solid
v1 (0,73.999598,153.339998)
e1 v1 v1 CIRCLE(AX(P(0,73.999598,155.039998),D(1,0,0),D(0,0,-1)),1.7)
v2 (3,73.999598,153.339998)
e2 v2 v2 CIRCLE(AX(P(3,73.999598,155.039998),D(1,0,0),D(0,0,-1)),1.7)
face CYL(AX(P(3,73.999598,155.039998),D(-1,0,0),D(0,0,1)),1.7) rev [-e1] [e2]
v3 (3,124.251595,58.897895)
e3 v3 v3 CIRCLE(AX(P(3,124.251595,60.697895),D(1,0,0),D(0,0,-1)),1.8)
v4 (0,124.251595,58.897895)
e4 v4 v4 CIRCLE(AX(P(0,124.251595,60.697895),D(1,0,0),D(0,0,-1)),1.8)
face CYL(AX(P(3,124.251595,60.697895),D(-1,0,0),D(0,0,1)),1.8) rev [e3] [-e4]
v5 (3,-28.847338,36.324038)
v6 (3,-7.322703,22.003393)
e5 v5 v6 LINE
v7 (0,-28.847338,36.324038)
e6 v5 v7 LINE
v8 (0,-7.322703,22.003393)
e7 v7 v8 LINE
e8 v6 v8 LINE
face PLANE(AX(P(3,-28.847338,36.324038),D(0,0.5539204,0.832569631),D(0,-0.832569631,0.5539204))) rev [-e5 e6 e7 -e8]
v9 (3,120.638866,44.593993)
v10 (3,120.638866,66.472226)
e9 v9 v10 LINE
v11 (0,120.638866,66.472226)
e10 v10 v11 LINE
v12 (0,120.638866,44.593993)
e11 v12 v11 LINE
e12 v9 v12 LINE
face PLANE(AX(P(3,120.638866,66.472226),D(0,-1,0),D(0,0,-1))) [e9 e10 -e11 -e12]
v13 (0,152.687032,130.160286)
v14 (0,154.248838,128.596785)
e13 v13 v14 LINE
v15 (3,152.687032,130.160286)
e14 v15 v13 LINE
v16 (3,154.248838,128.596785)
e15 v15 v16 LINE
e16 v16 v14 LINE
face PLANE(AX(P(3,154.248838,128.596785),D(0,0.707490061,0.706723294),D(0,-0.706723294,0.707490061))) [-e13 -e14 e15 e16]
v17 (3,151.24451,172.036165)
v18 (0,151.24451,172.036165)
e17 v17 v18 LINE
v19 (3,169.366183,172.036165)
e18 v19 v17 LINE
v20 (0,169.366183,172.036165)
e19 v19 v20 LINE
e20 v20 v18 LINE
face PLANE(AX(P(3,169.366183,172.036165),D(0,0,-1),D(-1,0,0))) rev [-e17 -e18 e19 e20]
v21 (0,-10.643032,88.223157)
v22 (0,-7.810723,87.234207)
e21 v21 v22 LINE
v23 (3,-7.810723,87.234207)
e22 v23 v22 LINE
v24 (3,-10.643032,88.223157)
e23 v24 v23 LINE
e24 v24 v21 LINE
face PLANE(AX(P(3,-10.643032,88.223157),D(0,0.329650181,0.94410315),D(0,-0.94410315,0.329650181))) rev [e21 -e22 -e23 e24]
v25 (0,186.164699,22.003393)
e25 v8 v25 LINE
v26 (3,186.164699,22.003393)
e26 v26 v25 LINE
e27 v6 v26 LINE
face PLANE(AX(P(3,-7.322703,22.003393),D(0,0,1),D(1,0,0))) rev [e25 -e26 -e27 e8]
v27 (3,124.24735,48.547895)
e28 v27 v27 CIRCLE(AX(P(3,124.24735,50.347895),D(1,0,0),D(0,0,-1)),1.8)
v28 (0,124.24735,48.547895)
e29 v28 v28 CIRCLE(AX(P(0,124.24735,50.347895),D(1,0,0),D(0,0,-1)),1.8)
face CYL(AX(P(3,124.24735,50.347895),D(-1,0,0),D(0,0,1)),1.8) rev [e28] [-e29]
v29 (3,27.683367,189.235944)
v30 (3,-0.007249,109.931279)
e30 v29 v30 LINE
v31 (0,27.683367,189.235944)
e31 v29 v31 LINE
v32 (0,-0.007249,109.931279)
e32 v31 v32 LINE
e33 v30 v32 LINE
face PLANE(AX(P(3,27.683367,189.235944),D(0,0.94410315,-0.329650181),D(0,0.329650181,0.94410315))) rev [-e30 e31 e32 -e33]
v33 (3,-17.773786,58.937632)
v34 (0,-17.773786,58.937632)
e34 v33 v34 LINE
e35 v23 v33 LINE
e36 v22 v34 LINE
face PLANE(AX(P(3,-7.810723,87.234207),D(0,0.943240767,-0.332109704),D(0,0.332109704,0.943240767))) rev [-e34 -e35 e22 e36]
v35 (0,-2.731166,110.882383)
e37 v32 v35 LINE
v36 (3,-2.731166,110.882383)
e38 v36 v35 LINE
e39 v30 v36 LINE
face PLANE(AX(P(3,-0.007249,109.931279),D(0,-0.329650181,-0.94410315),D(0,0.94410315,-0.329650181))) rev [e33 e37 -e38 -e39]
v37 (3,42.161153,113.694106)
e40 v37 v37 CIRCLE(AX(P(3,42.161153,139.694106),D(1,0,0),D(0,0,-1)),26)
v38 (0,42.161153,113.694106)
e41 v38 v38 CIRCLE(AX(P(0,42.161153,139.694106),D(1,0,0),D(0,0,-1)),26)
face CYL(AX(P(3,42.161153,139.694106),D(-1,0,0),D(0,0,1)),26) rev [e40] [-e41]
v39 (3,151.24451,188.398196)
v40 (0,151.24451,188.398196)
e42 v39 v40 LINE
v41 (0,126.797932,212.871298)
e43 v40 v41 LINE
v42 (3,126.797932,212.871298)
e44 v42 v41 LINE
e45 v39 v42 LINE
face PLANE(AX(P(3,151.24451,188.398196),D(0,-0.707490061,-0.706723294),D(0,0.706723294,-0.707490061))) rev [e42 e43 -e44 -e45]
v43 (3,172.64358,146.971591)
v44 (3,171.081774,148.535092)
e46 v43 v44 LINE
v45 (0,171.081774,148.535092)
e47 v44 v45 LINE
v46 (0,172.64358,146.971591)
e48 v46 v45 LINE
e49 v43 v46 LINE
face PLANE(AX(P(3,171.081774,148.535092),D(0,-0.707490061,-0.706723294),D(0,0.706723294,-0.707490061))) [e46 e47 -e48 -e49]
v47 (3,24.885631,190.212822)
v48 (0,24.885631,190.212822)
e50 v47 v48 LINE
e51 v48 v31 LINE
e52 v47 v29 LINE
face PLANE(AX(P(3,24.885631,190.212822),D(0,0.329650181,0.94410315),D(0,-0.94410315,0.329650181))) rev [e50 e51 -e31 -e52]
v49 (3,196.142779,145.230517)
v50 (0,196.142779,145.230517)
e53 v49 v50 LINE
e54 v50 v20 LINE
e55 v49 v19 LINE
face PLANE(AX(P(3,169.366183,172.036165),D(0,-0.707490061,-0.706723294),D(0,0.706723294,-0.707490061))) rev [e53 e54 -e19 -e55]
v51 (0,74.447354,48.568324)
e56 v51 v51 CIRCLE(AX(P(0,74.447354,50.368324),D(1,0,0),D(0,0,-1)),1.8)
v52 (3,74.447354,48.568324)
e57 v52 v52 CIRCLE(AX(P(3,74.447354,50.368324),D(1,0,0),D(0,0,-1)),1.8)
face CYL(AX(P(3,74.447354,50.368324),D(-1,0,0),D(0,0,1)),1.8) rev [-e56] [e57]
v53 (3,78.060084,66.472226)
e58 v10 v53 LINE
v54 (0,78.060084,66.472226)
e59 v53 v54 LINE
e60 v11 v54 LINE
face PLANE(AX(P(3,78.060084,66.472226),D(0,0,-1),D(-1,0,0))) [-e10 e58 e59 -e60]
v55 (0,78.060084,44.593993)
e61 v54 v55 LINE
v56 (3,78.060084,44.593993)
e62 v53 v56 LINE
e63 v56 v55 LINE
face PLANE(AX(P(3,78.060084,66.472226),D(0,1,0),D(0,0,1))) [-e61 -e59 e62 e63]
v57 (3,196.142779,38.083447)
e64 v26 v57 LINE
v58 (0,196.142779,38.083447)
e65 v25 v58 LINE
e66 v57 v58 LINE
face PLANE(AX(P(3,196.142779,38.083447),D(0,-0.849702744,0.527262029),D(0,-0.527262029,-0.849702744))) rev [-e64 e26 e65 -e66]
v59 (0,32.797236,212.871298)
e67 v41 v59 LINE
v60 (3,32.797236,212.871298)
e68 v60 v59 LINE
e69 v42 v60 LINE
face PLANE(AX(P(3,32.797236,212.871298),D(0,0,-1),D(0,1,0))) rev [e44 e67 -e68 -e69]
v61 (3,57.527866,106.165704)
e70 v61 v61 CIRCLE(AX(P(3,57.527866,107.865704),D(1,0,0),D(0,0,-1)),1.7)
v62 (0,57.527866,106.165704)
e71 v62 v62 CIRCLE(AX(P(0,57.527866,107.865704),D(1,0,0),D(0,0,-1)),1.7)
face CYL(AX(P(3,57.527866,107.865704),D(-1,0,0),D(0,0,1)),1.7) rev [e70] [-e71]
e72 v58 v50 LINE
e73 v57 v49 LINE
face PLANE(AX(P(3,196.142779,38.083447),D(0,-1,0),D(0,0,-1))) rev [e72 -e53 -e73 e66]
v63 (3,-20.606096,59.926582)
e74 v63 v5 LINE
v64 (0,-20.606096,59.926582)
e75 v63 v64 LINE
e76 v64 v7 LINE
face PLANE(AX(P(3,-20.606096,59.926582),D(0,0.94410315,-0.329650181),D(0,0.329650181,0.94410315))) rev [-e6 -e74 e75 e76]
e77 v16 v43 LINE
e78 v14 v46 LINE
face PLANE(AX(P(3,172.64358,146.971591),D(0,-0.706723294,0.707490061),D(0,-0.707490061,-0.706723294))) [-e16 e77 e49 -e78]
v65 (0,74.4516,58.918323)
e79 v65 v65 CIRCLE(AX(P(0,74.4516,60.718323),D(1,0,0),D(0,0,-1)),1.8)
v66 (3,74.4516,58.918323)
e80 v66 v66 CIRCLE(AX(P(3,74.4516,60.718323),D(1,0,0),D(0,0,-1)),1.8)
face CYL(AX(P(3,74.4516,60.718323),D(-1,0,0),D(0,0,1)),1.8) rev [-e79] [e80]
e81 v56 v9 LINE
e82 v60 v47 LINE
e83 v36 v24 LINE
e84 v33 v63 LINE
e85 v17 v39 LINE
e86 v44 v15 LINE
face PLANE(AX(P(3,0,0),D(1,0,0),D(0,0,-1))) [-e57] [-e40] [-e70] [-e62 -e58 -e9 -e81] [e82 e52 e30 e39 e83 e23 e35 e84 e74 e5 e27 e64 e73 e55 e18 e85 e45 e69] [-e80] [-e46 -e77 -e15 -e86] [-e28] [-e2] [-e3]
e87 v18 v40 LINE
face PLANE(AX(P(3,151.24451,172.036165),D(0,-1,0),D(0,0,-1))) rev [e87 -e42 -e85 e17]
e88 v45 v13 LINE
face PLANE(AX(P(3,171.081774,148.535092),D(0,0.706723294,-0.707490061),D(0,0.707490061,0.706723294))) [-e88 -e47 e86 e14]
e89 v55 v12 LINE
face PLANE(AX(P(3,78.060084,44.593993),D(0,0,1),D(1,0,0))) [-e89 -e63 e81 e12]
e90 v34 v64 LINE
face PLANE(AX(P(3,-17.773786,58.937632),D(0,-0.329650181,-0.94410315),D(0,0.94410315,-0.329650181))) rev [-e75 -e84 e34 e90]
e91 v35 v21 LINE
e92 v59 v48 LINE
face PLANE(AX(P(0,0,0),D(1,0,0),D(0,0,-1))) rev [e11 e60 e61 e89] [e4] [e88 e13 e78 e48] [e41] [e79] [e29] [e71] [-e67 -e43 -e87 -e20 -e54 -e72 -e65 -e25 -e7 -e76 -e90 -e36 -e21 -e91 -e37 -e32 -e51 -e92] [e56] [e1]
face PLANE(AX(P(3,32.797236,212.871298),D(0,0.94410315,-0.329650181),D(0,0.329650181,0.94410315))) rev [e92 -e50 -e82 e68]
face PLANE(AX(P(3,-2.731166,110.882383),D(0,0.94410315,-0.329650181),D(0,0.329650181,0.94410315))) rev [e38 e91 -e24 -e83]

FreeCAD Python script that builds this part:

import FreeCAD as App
import Part
import Sketcher
from FreeCAD import Vector
Q = App.Units.Quantity

doc = App.newDocument("Part")
body = doc.addObject("PartDesign::Body", "Body")

# Sketch on YZ plane
sketch1 = body.newObject("Sketcher::SketchObject", "Sketch")
sketch1.AttachmentSupport = (doc.getObject("YZ_Plane"), [""])
sketch1.MapMode = "FlatFace"
sketch1.addGeometry(Part.LineSegment(Vector(-2.731166, 110.882383, 0), Vector(-10.643032, 88.223157, 0)), False)
sketch1.addGeometry(Part.LineSegment(Vector(-10.643032, 88.223157, 0), Vector(-7.810723, 87.234207, 0)), False)
sketch1.addGeometry(Part.LineSegment(Vector(-7.810723, 87.234207, 0), Vector(-17.773786, 58.937632, 0)), False)
sketch1.addGeometry(Part.LineSegment(Vector(-17.773786, 58.937632, 0), Vector(-20.606096, 59.926582, 0)), False)
sketch1.addGeometry(Part.LineSegment(Vector(-20.606096, 59.926582, 0), Vector(-28.847338, 36.324038, 0)), False)
sketch1.addGeometry(Part.LineSegment(Vector(-28.847338, 36.324038, 0), Vector(-7.322703, 22.003393, 0)), False)
sketch1.addGeometry(Part.LineSegment(Vector(-7.322703, 22.003393, 0), Vector(186.164699, 22.003393, 0)), False)
sketch1.addGeometry(Part.LineSegment(Vector(186.164699, 22.003393, 0), Vector(196.142779, 38.083447, 0)), False)
sketch1.addGeometry(Part.LineSegment(Vector(196.142779, 38.083447, 0), Vector(196.142779, 145.230517, 0)), False)
sketch1.addGeometry(Part.LineSegment(Vector(196.142779, 145.230517, 0), Vector(169.366183, 172.036165, 0)), False)
sketch1.addGeometry(Part.LineSegment(Vector(169.366183, 172.036165, 0), Vector(151.24451, 172.036165, 0)), False)
sketch1.addGeometry(Part.LineSegment(Vector(151.24451, 172.036165, 0), Vector(151.24451, 188.398196, 0)), False)
sketch1.addGeometry(Part.LineSegment(Vector(151.24451, 188.398196, 0), Vector(126.797932, 212.871298, 0)), False)
sketch1.addGeometry(Part.LineSegment(Vector(126.797932, 212.871298, 0), Vector(32.797236, 212.871298, 0)), False)
sketch1.addGeometry(Part.LineSegment(Vector(32.797236, 212.871298, 0), Vector(24.885631, 190.212822, 0)), False)
sketch1.addGeometry(Part.LineSegment(Vector(24.885631, 190.212822, 0), Vector(27.683367, 189.235944, 0)), False)
sketch1.addGeometry(Part.LineSegment(Vector(27.683367, 189.235944, 0), Vector(-0.007249, 109.931279, 0)), False)
sketch1.addGeometry(Part.LineSegment(Vector(-0.007249, 109.931279, 0), Vector(-2.731166, 110.882383, 0)), False)
sketch1.addGeometry(Part.Circle(Vector(42.161153, 139.694106, 0), Vector(0, 0, 1), 26), False)
sketch1.addGeometry(Part.Circle(Vector(73.999598, 155.039998, 0), Vector(0, 0, 1), 1.7), False)
sketch1.addGeometry(Part.Circle(Vector(57.527866, 107.865704, 0), Vector(0, 0, 1), 1.7), False)
sketch1.addGeometry(Part.Circle(Vector(74.4516, 60.718323, 0), Vector(0, 0, 1), 1.8), False)
sketch1.addGeometry(Part.Circle(Vector(74.447354, 50.368324, 0), Vector(0, 0, 1), 1.8), False)
sketch1.addGeometry(Part.LineSegment(Vector(152.687032, 130.160286, 0), Vector(171.081774, 148.535092, 0)), False)
sketch1.addGeometry(Part.LineSegment(Vector(171.081774, 148.535092, 0), Vector(172.64358, 146.971591, 0)), False)
sketch1.addGeometry(Part.LineSegment(Vector(172.64358, 146.971591, 0), Vector(154.248838, 128.596785, 0)), False)
sketch1.addGeometry(Part.LineSegment(Vector(154.248838, 128.596785, 0), Vector(152.687032, 130.160286, 0)), False)
sketch1.addGeometry(Part.LineSegment(Vector(78.060084, 44.593993, 0), Vector(78.060084, 66.472226, 0)), False)
sketch1.addGeometry(Part.LineSegment(Vector(78.060084, 66.472226, 0), Vector(120.638866, 66.472226, 0)), False)
sketch1.addGeometry(Part.LineSegment(Vector(120.638866, 66.472226, 0), Vector(120.638866, 44.593993, 0)), False)
sketch1.addGeometry(Part.LineSegment(Vector(120.638866, 44.593993, 0), Vector(78.060084, 44.593993, 0)), False)
sketch1.addGeometry(Part.Circle(Vector(124.251595, 60.697895, 0), Vector(0, 0, 1), 1.8), False)
sketch1.addGeometry(Part.Circle(Vector(124.24735, 50.347895, 0), Vector(0, 0, 1), 1.8), False)
sketch1.addConstraint(Sketcher.Constraint("Coincident", 0, 2, 1, 1))
sketch1.addConstraint(Sketcher.Constraint("Coincident", 1, 2, 2, 1))
sketch1.addConstraint(Sketcher.Constraint("Coincident", 2, 2, 3, 1))
sketch1.addConstraint(Sketcher.Constraint("Coincident", 3, 2, 4, 1))
sketch1.addConstraint(Sketcher.Constraint("Coincident", 4, 2, 5, 1))
sketch1.addConstraint(Sketcher.Constraint("Coincident", 5, 2, 6, 1))
sketch1.addConstraint(Sketcher.Constraint("Coincident", 6, 2, 7, 1))
sketch1.addConstraint(Sketcher.Constraint("Coincident", 7, 2, 8, 1))
sketch1.addConstraint(Sketcher.Constraint("Coincident", 8, 2, 9, 1))
sketch1.addConstraint(Sketcher.Constraint("Coincident", 9, 2, 10, 1))
sketch1.addConstraint(Sketcher.Constraint("Coincident", 10, 2, 11, 1))
sketch1.addConstraint(Sketcher.Constraint("Coincident", 11, 2, 12, 1))
sketch1.addConstraint(Sketcher.Constraint("Coincident", 12, 2, 13, 1))
sketch1.addConstraint(Sketcher.Constraint("Coincident", 13, 2, 14, 1))
sketch1.addConstraint(Sketcher.Constraint("Coincident", 14, 2, 15, 1))
sketch1.addConstraint(Sketcher.Constraint("Coincident", 15, 2, 16, 1))
sketch1.addConstraint(Sketcher.Constraint("Coincident", 16, 2, 17, 1))
sketch1.addConstraint(Sketcher.Constraint("Coincident", 17, 2, 0, 1))
sketch1.addConstraint(Sketcher.Constraint("Coincident", 23, 2, 24, 1))
sketch1.addConstraint(Sketcher.Constraint("Coincident", 24, 2, 25, 1))
sketch1.addConstraint(Sketcher.Constraint("Coincident", 25, 2, 26, 1))
sketch1.addConstraint(Sketcher.Constraint("Coincident", 26, 2, 23, 1))
sketch1.addConstraint(Sketcher.Constraint("Coincident", 27, 2, 28, 1))
sketch1.addConstraint(Sketcher.Constraint("Coincident", 28, 2, 29, 1))
sketch1.addConstraint(Sketcher.Constraint("Coincident", 29, 2, 30, 1))
sketch1.addConstraint(Sketcher.Constraint("Coincident", 30, 2, 27, 1))
sketch1.addConstraint(Sketcher.Constraint("Horizontal", 6))
sketch1.addConstraint(Sketcher.Constraint("Vertical", 8))
sketch1.addConstraint(Sketcher.Constraint("Horizontal", 10))
sketch1.addConstraint(Sketcher.Constraint("Vertical", 11))
sketch1.addConstraint(Sketcher.Constraint("Horizontal", 13))
sketch1.addConstraint(Sketcher.Constraint("Vertical", 27))
sketch1.addConstraint(Sketcher.Constraint("Horizontal", 28))
sketch1.addConstraint(Sketcher.Constraint("Vertical", 29))
sketch1.addConstraint(Sketcher.Constraint("Horizontal", 30))
sketch1.addConstraint(Sketcher.Constraint("Equal", 19, 20))
sketch1.addConstraint(Sketcher.Constraint("Equal", 21, 22))
sketch1.addConstraint(Sketcher.Constraint("Equal", 22, 31))
sketch1.addConstraint(Sketcher.Constraint("Equal", 31, 32))
sketch1.addConstraint(Sketcher.Constraint("Perpendicular", 0, 1))
sketch1.addConstraint(Sketcher.Constraint("Parallel", 1, 3))
sketch1.addConstraint(Sketcher.Constraint("Perpendicular", 3, 4))
sketch1.addConstraint(Sketcher.Constraint("Parallel", 9, 12))
sketch1.addConstraint(Sketcher.Constraint("Parallel", 4, 14))
sketch1.addConstraint(Sketcher.Constraint("Perpendicular", 14, 15))
sketch1.addConstraint(Sketcher.Constraint("Perpendicular", 15, 16))
sketch1.addConstraint(Sketcher.Constraint("Perpendicular", 16, 17))
sketch1.addConstraint(Sketcher.Constraint("Perpendicular", 12, 23))
sketch1.addConstraint(Sketcher.Constraint("Perpendicular", 23, 24))
sketch1.addConstraint(Sketcher.Constraint("Perpendicular", 24, 25))
sketch1.addConstraint(Sketcher.Constraint("Perpendicular", 25, 26))
sketch1.addConstraint(Sketcher.Constraint("Equal", 1, 3))
sketch1.addConstraint(Sketcher.Constraint("Diameter", 18, Q("52 mm")))
sketch1.addConstraint(Sketcher.Constraint("Diameter", 19, Q("3.4 mm")))
sketch1.addConstraint(Sketcher.Constraint("Diameter", 21, Q("3.6 mm")))
sketch1.addConstraint(Sketcher.Constraint("Distance", 1, Q("3 mm")))
sketch1.addConstraint(Sketcher.Constraint("Distance", 14, Q("24 mm")))
sketch1.addConstraint(Sketcher.Constraint("Distance", 16, Q("84 mm")))
sketch1.addConstraint(Sketcher.Constraint("Distance", 23, Q("26 mm")))
sketch1.addConstraint(Sketcher.Constraint("DistanceY", -1, 1, 19, 3, Q("155.039998 mm")))
sketch1.addConstraint(Sketcher.Constraint("DistanceY", 22, 3, 21, 3, Q("10.349999 mm")))
sketch1.addConstraint(Sketcher.Constraint("DistanceY", 32, 3, 31, 3, Q("10.349999 mm")))
sketch1.addConstraint(Sketcher.Constraint("DistanceX", 19, 3, 21, 3, Q("0.452001 mm")))
sketch1.addConstraint(Sketcher.Constraint("DistanceX", 28, 1, 28, 2, Q("42.578782 mm")))
sketch1.addConstraint(Sketcher.Constraint("DistanceY", 8, 1, 8, 2, Q("107.14707 mm")))
sketch1.addConstraint(Sketcher.Constraint("DistanceY", 11, 1, 11, 2, Q("16.362031 mm")))
sketch1.addConstraint(Sketcher.Constraint("DistanceX", -1, 1, 19, 3, Q("73.999598 mm")))
sketch1.addConstraint(Sketcher.Constraint("DistanceX", -1, 1, 6, 2, Q("186.164699 mm")))
sketch1.addConstraint(Sketcher.Constraint("DistanceY", 20, 3, 18, 3, Q("31.828401 mm")))
sketch1.addConstraint(Sketcher.Constraint("DistanceX", 18, 3, 22, 3, Q("32.2862 mm")))
sketch1.addConstraint(Sketcher.Constraint("DistanceX", 0, 2, 20, 3, Q("68.170899 mm")))
sketch1.addConstraint(Sketcher.Constraint("DistanceY", 1, 2, 18, 3, Q("52.459899 mm")))
sketch1.addConstraint(Sketcher.Constraint("DistanceY", 6, 2, 31, 3, Q("38.694501 mm")))
sketch1.addConstraint(Sketcher.Constraint("DistanceY", 19, 3, 11, 2, Q("33.358198 mm")))
sketch1.addConstraint(Sketcher.Constraint("DistanceY", 11, 2, 12, 2, Q("24.473101 mm")))
sketch1.addConstraint(Sketcher.Constraint("DistanceX", 14, 2, 12, 2, Q("101.912301 mm")))
sketch1.addConstraint(Sketcher.Constraint("DistanceX", 15, 2, 20, 3, Q("29.844499 mm")))
sketch1.addConstraint(Sketcher.Constraint("DistanceY", 3, 2, 17, 2, Q("50.955801 mm")))
sketch1.addConstraint(Sketcher.Constraint("DistanceY", 24, 2, 23, 2, Q("1.563501 mm")))
sketch1.addConstraint(Sketcher.Constraint("DistanceX", 24, 2, 8, 2, Q("23.499199 mm")))
sketch1.addConstraint(Sketcher.Constraint("Distance", 7, Q("18.924329 mm")))
sketch1.addConstraint(Sketcher.Constraint("Distance", 12, Q("34.591442 mm")))
sketch1.addConstraint(Sketcher.Constraint("Distance", 15, Q("2.963379 mm")))
sketch1.addConstraint(Sketcher.Constraint("Distance", 17, Q("2.885191 mm")))
sketch1.addConstraint(Sketcher.Constraint("DistanceX", 6, 1, 6, 2, Q("193.487403 mm")))
sketch1.addConstraint(Sketcher.Constraint("DistanceX", 10, 2, 10, 1, Q("18.121673 mm")))
sketch1.addConstraint(Sketcher.Constraint("DistanceX", 13, 2, 13, 1, Q("94.000697 mm")))
sketch1.addConstraint(Sketcher.Constraint("DistanceY", 27, 1, 27, 2, Q("21.878234 mm")))
sketch1.addConstraint(Sketcher.Constraint("DistanceX", -1, 1, 32, 3, Q("124.24735 mm")))
sketch1.addConstraint(Sketcher.Constraint("DistanceY", -1, 1, 4, 2, Q("36.324038 mm")))
sketch1.addConstraint(Sketcher.Constraint("DistanceX", -1, 1, 7, 2, Q("196.142779 mm")))
sketch1.addConstraint(Sketcher.Constraint("DistanceX", -1, 1, 10, 2, Q("151.24451 mm")))
sketch1.addConstraint(Sketcher.Constraint("DistanceY", -1, 1, 23, 2, Q("148.535092 mm")))
sketch1.addConstraint(Sketcher.Constraint("DistanceY", 21, 3, 20, 3, Q("47.147381 mm")))
sketch1.addConstraint(Sketcher.Constraint("DistanceX", 22, 3, 31, 3, Q("49.804242 mm")))
sketch1.addConstraint(Sketcher.Constraint("DistanceX", 20, 3, 31, 3, Q("66.723729 mm")))
sketch1.addConstraint(Sketcher.Constraint("DistanceX", 2, 2, 22, 3, Q("92.22114 mm")))
sketch1.addConstraint(Sketcher.Constraint("DistanceX", 22, 3, 27, 2, Q("3.61273 mm")))
sketch1.addConstraint(Sketcher.Constraint("DistanceY", 27, 2, 20, 3, Q("41.393478 mm")))
pad1 = body.newObject("PartDesign::Pad", "Pad")
pad1.Profile = sketch1
pad1.Length = 3

doc.recompute()
